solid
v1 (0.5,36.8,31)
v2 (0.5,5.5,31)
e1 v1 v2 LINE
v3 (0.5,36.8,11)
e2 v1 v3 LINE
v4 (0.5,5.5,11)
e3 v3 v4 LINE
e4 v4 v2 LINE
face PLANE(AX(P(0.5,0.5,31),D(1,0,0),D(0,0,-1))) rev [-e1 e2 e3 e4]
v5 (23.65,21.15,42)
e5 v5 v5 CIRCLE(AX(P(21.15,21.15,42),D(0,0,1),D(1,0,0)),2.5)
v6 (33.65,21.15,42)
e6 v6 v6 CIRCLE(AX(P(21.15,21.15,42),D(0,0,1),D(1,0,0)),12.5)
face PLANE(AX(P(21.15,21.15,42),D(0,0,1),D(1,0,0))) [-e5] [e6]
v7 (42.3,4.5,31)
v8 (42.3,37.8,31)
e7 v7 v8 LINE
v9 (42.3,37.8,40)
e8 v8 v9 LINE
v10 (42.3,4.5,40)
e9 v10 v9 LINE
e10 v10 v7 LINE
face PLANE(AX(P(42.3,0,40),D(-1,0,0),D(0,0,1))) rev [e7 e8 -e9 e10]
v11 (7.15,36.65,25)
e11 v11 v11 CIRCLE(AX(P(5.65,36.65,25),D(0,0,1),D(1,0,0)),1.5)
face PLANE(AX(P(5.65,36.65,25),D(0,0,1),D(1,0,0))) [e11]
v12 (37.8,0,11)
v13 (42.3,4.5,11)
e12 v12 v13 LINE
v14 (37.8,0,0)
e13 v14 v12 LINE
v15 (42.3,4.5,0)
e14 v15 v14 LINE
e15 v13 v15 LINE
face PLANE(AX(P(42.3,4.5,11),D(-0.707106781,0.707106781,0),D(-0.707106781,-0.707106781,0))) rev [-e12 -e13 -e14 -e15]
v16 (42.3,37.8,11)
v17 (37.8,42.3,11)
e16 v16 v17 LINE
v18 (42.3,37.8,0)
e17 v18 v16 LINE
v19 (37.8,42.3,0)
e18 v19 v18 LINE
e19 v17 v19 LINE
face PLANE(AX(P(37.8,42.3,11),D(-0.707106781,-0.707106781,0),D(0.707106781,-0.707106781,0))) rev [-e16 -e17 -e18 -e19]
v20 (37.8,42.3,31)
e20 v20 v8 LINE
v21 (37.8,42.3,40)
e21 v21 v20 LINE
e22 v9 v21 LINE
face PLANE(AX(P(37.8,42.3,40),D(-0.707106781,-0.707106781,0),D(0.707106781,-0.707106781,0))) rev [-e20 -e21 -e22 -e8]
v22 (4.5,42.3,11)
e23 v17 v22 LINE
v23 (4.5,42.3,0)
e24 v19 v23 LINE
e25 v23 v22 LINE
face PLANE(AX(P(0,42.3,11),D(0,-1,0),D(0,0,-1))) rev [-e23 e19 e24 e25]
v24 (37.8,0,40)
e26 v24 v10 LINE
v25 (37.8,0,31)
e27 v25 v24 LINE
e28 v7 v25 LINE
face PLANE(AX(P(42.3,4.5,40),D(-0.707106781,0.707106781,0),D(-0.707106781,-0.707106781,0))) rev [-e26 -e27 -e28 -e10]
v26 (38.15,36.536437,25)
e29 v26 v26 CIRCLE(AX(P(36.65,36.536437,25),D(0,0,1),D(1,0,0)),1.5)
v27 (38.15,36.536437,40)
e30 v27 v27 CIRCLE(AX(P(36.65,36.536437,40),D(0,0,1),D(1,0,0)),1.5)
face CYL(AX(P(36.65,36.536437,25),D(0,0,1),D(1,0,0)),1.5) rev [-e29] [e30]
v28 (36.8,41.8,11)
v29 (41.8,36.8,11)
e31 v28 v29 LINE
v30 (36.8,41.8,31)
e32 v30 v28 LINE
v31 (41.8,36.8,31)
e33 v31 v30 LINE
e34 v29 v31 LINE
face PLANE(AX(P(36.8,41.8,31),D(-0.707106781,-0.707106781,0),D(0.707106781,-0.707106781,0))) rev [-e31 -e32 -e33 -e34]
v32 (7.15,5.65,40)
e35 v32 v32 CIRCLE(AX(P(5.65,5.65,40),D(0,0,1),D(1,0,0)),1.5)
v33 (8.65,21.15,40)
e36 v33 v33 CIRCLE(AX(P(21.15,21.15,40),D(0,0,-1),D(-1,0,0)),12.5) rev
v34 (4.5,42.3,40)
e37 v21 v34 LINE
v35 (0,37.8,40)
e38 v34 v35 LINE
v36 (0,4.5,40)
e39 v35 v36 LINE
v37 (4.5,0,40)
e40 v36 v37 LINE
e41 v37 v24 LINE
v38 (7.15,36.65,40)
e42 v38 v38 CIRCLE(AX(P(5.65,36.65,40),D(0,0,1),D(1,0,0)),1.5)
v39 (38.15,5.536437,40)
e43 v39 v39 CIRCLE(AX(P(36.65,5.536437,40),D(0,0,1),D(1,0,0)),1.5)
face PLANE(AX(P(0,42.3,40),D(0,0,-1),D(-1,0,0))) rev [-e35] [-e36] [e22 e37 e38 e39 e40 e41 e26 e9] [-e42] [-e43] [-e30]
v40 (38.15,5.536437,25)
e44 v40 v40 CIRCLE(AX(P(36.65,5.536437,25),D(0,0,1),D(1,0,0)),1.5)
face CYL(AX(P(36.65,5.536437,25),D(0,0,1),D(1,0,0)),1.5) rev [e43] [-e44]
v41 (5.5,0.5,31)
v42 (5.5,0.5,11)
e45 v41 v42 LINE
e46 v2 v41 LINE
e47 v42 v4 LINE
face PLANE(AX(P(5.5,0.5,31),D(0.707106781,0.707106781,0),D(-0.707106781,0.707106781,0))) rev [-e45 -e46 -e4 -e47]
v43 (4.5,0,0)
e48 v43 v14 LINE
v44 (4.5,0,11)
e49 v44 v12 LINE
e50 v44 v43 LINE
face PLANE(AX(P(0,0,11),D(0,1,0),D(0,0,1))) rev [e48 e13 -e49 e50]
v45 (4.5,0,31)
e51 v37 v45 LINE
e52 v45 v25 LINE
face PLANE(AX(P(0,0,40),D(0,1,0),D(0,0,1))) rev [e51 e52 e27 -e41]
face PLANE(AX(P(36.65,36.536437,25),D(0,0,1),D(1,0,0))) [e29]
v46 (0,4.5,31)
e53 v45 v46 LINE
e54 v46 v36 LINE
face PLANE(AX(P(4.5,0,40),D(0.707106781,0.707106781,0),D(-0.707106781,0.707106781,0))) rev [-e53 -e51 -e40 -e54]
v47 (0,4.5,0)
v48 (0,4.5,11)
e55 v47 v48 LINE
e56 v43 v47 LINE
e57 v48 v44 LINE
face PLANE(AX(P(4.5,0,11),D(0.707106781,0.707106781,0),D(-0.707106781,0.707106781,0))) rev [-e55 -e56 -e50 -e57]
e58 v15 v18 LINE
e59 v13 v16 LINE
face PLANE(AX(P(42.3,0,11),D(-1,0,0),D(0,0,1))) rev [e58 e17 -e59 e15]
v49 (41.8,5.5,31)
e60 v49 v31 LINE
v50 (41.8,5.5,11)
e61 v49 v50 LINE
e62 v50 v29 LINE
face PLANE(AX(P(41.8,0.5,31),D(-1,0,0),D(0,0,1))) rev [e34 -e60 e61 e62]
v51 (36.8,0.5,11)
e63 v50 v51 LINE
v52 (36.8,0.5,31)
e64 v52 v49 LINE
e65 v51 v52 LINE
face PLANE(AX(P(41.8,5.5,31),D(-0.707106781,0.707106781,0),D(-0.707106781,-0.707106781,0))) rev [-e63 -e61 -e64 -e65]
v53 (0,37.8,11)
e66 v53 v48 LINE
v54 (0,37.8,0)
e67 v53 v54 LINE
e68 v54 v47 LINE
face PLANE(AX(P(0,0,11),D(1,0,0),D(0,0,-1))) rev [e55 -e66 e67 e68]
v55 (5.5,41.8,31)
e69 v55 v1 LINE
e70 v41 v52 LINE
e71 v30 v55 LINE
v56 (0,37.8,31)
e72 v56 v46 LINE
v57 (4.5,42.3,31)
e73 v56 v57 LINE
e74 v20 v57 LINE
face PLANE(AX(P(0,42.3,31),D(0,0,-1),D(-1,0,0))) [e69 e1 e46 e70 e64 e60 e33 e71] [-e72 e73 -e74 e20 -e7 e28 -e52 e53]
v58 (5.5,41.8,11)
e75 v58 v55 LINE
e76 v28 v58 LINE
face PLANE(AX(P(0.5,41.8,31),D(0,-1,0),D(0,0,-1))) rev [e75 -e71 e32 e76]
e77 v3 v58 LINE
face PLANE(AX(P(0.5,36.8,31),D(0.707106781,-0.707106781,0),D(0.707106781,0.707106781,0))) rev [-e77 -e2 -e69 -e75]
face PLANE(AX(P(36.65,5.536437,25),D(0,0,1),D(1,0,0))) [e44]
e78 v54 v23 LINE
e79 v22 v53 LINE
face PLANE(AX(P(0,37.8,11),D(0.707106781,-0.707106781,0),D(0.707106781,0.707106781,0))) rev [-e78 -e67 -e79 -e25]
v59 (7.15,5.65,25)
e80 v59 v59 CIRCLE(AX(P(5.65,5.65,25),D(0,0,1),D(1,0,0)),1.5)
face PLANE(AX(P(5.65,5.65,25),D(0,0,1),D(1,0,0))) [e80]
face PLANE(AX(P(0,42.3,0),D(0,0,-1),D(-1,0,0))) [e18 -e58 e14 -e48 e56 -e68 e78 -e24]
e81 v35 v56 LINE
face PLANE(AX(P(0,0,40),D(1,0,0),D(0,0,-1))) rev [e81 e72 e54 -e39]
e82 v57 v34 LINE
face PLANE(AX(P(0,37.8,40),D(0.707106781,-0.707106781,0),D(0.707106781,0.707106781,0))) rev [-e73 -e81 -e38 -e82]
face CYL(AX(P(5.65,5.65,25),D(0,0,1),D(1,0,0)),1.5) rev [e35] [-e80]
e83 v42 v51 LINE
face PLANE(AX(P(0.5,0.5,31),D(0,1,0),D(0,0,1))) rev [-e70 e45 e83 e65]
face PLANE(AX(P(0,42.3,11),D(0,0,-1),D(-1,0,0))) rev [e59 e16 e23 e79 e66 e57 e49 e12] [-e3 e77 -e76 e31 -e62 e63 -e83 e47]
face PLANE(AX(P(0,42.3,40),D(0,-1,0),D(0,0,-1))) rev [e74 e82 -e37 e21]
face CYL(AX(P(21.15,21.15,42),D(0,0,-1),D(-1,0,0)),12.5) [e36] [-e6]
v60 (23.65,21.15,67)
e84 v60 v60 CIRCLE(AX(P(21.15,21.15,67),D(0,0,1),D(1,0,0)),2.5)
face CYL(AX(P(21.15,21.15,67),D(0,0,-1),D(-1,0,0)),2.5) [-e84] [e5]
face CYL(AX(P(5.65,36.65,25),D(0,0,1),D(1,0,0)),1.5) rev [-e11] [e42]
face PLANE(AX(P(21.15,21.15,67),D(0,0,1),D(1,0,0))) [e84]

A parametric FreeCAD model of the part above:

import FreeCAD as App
import Part
import Sketcher
from FreeCAD import Vector
Q = App.Units.Quantity


def edges_at(feature, points):
    """Names of the edges that pass closest to the given points."""
    edges = feature.Shape.Edges
    near = lambda p: min(range(len(edges)), key=lambda i: edges[i].distToShape(Part.Vertex(*p))[0])
    return sorted({f"Edge{near(p) + 1}" for p in points})

doc = App.newDocument("Part")
body = doc.addObject("PartDesign::Body", "Body")

sketch1 = body.newObject("Sketcher::SketchObject", "Sketch")
sketch1.AttachmentSupport = (doc.getObject("XY_Plane"), [""])
sketch1.MapMode = "FlatFace"
sketch1.addGeometry([
    Part.LineSegment(Vector(0, 42.3, 0), Vector(0, 0, 0)),
    Part.LineSegment(Vector(0, 0, 0), Vector(42.3, 0, 0)),
    Part.LineSegment(Vector(42.3, 0, 0), Vector(42.3, 42.3, 0)),
    Part.LineSegment(Vector(42.3, 42.3, 0), Vector(0, 42.3, 0)),
], False)
sketch1.addConstraint([
    Sketcher.Constraint("Coincident", 0, 2, 1, 1),
    Sketcher.Constraint("Coincident", 1, 2, 2, 1),
    Sketcher.Constraint("Coincident", 2, 2, 3, 1),
    Sketcher.Constraint("Coincident", 3, 2, 0, 1),
    Sketcher.Constraint("Vertical", 0),
    Sketcher.Constraint("Horizontal", 1),
    Sketcher.Constraint("Vertical", 2),
    Sketcher.Constraint("Horizontal", 3),
    Sketcher.Constraint("Coincident", 0, 2, -1, 1),
    Sketcher.Constraint("Equal", 3, 0),
    Sketcher.Constraint("DistanceX", 1, 1, 1, 2, Q("42.3 mm")),
])
pad1 = body.newObject("PartDesign::Pad", "Pad")
pad1.Profile = sketch1
pad1.Length = 11

sketch2 = body.newObject("Sketcher::SketchObject", "Sketch001")
sketch2.AttachmentSupport = (doc.getObject("XY_Plane"), [""])
sketch2.MapMode = "FlatFace"
sketch2.AttachmentOffset = App.Placement(Vector(0, 0, 11), App.Rotation())
sketch2.addGeometry([
    Part.LineSegment(Vector(0.5, 41.8, 0), Vector(0.5, 0.5, 0)),
    Part.LineSegment(Vector(0.5, 0.5, 0), Vector(41.8, 0.5, 0)),
    Part.LineSegment(Vector(41.8, 0.5, 0), Vector(41.8, 41.8, 0)),
    Part.LineSegment(Vector(41.8, 41.8, 0), Vector(0.5, 41.8, 0)),
], False)
sketch2.addConstraint([
    Sketcher.Constraint("Coincident", 0, 2, 1, 1),
    Sketcher.Constraint("Coincident", 1, 2, 2, 1),
    Sketcher.Constraint("Coincident", 2, 2, 3, 1),
    Sketcher.Constraint("Coincident", 3, 2, 0, 1),
    Sketcher.Constraint("Vertical", 0),
    Sketcher.Constraint("Horizontal", 1),
    Sketcher.Constraint("Vertical", 2),
    Sketcher.Constraint("Horizontal", 3),
    Sketcher.Constraint("Equal", 3, 0),
    Sketcher.Constraint("DistanceX", 1, 1, 1, 2, Q("41.3 mm")),
    Sketcher.Constraint("DistanceX", -1, 1, 0, 2, Q("0.5 mm")),
    Sketcher.Constraint("DistanceY", -1, 1, 0, 2, Q("0.5 mm")),
])
pad2 = body.newObject("PartDesign::Pad", "Pad001")
pad2.Profile = sketch2
pad2.Length = 20

sketch3 = body.newObject("Sketcher::SketchObject", "Sketch002")
sketch3.AttachmentSupport = (doc.getObject("XY_Plane"), [""])
sketch3.MapMode = "FlatFace"
sketch3.AttachmentOffset = App.Placement(Vector(0, 0, 31), App.Rotation())
sketch3.addGeometry([
    Part.LineSegment(Vector(0, 42.3, 0), Vector(0, 0, 0)),
    Part.LineSegment(Vector(0, 0, 0), Vector(42.3, 0, 0)),
    Part.LineSegment(Vector(42.3, 0, 0), Vector(42.3, 42.3, 0)),
    Part.LineSegment(Vector(42.3, 42.3, 0), Vector(0, 42.3, 0)),
], False)
sketch3.addConstraint([
    Sketcher.Constraint("Coincident", 0, 2, 1, 1),
    Sketcher.Constraint("Coincident", 1, 2, 2, 1),
    Sketcher.Constraint("Coincident", 2, 2, 3, 1),
    Sketcher.Constraint("Coincident", 3, 2, 0, 1),
    Sketcher.Constraint("Vertical", 0),
    Sketcher.Constraint("Horizontal", 1),
    Sketcher.Constraint("Vertical", 2),
    Sketcher.Constraint("Horizontal", 3),
    Sketcher.Constraint("Coincident", 0, 2, -1, 1),
    Sketcher.Constraint("Equal", 3, 0),
    Sketcher.Constraint("DistanceX", 1, 1, 1, 2, Q("42.3 mm")),
])
pad3 = body.newObject("PartDesign::Pad", "Pad002")
pad3.Profile = sketch3
pad3.Length = 9

sketch4 = body.newObject("Sketcher::SketchObject", "Sketch003")
sketch4.AttachmentSupport = (doc.getObject("XY_Plane"), [""])
sketch4.MapMode = "FlatFace"
sketch4.AttachmentOffset = App.Placement(Vector(0, 0, 40), App.Rotation())
sketch4.addGeometry(Part.Circle(Vector(21.15, 21.15, 0), Vector(0, 0, 1), 12.5), False)
sketch4.addConstraint([
    Sketcher.Constraint("Diameter", 0, Q("25 mm")),
    Sketcher.Constraint("DistanceX", -1, 1, 0, 3, Q("21.15 mm")),
    Sketcher.Constraint("DistanceY", -1, 1, 0, 3, Q("21.15 mm")),
])
pad4 = body.newObject("PartDesign::Pad", "Pad003")
pad4.Profile = sketch4
pad4.Length = 2

sketch5 = body.newObject("Sketcher::SketchObject", "Sketch004")
sketch5.AttachmentSupport = (doc.getObject("XY_Plane"), [""])
sketch5.MapMode = "FlatFace"
sketch5.AttachmentOffset = App.Placement(Vector(0, 0, 42), App.Rotation())
sketch5.addGeometry(Part.Circle(Vector(21.15, 21.15, 0), Vector(0, 0, 1), 2.5), False)
sketch5.addConstraint([
    Sketcher.Constraint("Diameter", 0, Q("5 mm")),
    Sketcher.Constraint("DistanceX", -1, 1, 0, 3, Q("21.15 mm")),
    Sketcher.Constraint("DistanceY", -1, 1, 0, 3, Q("21.15 mm")),
])
pad5 = body.newObject("PartDesign::Pad", "Pad004")
pad5.Profile = sketch5
pad5.Length = 25

sketch6 = body.newObject("Sketcher::SketchObject", "Sketch005")
sketch6.AttachmentSupport = (doc.getObject("XY_Plane"), [""])
sketch6.MapMode = "FlatFace"
sketch6.AttachmentOffset = App.Placement(Vector(0, 0, 40), App.Rotation())
sketch6.addGeometry([
    Part.Circle(Vector(5.65, 36.65, 0), Vector(0, 0, 1), 1.5),
    Part.Circle(Vector(5.65, 5.65, 0), Vector(0, 0, 1), 1.5),
    Part.Circle(Vector(36.65, 5.536437, 0), Vector(0, 0, 1), 1.5),
    Part.Circle(Vector(36.65, 36.536437, 0), Vector(0, 0, 1), 1.5),
], False)
sketch6.addConstraint([
    Sketcher.Constraint("Equal", 0, 1),
    Sketcher.Constraint("Equal", 1, 2),
    Sketcher.Constraint("Equal", 2, 3),
    Sketcher.Constraint("Vertical", 0, 3, 1, 3),
    Sketcher.Constraint("Vertical", 2, 3, 3, 3),
    Sketcher.Constraint("Diameter", 0, Q("3 mm")),
    Sketcher.Constraint("DistanceY", 1, 3, 0, 3, Q("31 mm")),
    Sketcher.Constraint("DistanceX", 1, 3, 2, 3, Q("31 mm")),
    Sketcher.Constraint("DistanceY", 2, 3, 3, 3, Q("31 mm")),
    Sketcher.Constraint("DistanceX", -1, 1, 0, 3, Q("5.65 mm")),
    Sketcher.Constraint("DistanceY", -1, 1, 0, 3, Q("36.65 mm")),
    Sketcher.Constraint("DistanceY", -1, 1, 2, 3, Q("5.536437 mm")),
])
pocket1 = body.newObject("PartDesign::Pocket", "Pocket")
pocket1.Profile = sketch6
pocket1.Length = 15
doc.recompute()

chamfer = body.newObject("PartDesign::Chamfer", "Chamfer")
chamfer.Base = (pocket1, edges_at(pocket1, [
    (0.5, 41.8, 21),
    (0.5, 0.5, 21),
    (41.8, 0.5, 21),
    (41.8, 41.8, 21),
]))
chamfer.Size = 5
doc.recompute()

chamfer2 = body.newObject("PartDesign::Chamfer", "Chamfer001")
chamfer2.Base = (chamfer, edges_at(chamfer, [
    (0, 42.3, 35.5),
    (0, 0, 35.5),
    (42.3, 0, 35.5),
    (42.3, 42.3, 35.5),
    (0, 42.3, 5.5),
    (42.3, 42.3, 5.5),
    (42.3, 0, 5.5),
    (0, 0, 5.5),
]))
chamfer2.Size = 4.5

doc.recompute()
